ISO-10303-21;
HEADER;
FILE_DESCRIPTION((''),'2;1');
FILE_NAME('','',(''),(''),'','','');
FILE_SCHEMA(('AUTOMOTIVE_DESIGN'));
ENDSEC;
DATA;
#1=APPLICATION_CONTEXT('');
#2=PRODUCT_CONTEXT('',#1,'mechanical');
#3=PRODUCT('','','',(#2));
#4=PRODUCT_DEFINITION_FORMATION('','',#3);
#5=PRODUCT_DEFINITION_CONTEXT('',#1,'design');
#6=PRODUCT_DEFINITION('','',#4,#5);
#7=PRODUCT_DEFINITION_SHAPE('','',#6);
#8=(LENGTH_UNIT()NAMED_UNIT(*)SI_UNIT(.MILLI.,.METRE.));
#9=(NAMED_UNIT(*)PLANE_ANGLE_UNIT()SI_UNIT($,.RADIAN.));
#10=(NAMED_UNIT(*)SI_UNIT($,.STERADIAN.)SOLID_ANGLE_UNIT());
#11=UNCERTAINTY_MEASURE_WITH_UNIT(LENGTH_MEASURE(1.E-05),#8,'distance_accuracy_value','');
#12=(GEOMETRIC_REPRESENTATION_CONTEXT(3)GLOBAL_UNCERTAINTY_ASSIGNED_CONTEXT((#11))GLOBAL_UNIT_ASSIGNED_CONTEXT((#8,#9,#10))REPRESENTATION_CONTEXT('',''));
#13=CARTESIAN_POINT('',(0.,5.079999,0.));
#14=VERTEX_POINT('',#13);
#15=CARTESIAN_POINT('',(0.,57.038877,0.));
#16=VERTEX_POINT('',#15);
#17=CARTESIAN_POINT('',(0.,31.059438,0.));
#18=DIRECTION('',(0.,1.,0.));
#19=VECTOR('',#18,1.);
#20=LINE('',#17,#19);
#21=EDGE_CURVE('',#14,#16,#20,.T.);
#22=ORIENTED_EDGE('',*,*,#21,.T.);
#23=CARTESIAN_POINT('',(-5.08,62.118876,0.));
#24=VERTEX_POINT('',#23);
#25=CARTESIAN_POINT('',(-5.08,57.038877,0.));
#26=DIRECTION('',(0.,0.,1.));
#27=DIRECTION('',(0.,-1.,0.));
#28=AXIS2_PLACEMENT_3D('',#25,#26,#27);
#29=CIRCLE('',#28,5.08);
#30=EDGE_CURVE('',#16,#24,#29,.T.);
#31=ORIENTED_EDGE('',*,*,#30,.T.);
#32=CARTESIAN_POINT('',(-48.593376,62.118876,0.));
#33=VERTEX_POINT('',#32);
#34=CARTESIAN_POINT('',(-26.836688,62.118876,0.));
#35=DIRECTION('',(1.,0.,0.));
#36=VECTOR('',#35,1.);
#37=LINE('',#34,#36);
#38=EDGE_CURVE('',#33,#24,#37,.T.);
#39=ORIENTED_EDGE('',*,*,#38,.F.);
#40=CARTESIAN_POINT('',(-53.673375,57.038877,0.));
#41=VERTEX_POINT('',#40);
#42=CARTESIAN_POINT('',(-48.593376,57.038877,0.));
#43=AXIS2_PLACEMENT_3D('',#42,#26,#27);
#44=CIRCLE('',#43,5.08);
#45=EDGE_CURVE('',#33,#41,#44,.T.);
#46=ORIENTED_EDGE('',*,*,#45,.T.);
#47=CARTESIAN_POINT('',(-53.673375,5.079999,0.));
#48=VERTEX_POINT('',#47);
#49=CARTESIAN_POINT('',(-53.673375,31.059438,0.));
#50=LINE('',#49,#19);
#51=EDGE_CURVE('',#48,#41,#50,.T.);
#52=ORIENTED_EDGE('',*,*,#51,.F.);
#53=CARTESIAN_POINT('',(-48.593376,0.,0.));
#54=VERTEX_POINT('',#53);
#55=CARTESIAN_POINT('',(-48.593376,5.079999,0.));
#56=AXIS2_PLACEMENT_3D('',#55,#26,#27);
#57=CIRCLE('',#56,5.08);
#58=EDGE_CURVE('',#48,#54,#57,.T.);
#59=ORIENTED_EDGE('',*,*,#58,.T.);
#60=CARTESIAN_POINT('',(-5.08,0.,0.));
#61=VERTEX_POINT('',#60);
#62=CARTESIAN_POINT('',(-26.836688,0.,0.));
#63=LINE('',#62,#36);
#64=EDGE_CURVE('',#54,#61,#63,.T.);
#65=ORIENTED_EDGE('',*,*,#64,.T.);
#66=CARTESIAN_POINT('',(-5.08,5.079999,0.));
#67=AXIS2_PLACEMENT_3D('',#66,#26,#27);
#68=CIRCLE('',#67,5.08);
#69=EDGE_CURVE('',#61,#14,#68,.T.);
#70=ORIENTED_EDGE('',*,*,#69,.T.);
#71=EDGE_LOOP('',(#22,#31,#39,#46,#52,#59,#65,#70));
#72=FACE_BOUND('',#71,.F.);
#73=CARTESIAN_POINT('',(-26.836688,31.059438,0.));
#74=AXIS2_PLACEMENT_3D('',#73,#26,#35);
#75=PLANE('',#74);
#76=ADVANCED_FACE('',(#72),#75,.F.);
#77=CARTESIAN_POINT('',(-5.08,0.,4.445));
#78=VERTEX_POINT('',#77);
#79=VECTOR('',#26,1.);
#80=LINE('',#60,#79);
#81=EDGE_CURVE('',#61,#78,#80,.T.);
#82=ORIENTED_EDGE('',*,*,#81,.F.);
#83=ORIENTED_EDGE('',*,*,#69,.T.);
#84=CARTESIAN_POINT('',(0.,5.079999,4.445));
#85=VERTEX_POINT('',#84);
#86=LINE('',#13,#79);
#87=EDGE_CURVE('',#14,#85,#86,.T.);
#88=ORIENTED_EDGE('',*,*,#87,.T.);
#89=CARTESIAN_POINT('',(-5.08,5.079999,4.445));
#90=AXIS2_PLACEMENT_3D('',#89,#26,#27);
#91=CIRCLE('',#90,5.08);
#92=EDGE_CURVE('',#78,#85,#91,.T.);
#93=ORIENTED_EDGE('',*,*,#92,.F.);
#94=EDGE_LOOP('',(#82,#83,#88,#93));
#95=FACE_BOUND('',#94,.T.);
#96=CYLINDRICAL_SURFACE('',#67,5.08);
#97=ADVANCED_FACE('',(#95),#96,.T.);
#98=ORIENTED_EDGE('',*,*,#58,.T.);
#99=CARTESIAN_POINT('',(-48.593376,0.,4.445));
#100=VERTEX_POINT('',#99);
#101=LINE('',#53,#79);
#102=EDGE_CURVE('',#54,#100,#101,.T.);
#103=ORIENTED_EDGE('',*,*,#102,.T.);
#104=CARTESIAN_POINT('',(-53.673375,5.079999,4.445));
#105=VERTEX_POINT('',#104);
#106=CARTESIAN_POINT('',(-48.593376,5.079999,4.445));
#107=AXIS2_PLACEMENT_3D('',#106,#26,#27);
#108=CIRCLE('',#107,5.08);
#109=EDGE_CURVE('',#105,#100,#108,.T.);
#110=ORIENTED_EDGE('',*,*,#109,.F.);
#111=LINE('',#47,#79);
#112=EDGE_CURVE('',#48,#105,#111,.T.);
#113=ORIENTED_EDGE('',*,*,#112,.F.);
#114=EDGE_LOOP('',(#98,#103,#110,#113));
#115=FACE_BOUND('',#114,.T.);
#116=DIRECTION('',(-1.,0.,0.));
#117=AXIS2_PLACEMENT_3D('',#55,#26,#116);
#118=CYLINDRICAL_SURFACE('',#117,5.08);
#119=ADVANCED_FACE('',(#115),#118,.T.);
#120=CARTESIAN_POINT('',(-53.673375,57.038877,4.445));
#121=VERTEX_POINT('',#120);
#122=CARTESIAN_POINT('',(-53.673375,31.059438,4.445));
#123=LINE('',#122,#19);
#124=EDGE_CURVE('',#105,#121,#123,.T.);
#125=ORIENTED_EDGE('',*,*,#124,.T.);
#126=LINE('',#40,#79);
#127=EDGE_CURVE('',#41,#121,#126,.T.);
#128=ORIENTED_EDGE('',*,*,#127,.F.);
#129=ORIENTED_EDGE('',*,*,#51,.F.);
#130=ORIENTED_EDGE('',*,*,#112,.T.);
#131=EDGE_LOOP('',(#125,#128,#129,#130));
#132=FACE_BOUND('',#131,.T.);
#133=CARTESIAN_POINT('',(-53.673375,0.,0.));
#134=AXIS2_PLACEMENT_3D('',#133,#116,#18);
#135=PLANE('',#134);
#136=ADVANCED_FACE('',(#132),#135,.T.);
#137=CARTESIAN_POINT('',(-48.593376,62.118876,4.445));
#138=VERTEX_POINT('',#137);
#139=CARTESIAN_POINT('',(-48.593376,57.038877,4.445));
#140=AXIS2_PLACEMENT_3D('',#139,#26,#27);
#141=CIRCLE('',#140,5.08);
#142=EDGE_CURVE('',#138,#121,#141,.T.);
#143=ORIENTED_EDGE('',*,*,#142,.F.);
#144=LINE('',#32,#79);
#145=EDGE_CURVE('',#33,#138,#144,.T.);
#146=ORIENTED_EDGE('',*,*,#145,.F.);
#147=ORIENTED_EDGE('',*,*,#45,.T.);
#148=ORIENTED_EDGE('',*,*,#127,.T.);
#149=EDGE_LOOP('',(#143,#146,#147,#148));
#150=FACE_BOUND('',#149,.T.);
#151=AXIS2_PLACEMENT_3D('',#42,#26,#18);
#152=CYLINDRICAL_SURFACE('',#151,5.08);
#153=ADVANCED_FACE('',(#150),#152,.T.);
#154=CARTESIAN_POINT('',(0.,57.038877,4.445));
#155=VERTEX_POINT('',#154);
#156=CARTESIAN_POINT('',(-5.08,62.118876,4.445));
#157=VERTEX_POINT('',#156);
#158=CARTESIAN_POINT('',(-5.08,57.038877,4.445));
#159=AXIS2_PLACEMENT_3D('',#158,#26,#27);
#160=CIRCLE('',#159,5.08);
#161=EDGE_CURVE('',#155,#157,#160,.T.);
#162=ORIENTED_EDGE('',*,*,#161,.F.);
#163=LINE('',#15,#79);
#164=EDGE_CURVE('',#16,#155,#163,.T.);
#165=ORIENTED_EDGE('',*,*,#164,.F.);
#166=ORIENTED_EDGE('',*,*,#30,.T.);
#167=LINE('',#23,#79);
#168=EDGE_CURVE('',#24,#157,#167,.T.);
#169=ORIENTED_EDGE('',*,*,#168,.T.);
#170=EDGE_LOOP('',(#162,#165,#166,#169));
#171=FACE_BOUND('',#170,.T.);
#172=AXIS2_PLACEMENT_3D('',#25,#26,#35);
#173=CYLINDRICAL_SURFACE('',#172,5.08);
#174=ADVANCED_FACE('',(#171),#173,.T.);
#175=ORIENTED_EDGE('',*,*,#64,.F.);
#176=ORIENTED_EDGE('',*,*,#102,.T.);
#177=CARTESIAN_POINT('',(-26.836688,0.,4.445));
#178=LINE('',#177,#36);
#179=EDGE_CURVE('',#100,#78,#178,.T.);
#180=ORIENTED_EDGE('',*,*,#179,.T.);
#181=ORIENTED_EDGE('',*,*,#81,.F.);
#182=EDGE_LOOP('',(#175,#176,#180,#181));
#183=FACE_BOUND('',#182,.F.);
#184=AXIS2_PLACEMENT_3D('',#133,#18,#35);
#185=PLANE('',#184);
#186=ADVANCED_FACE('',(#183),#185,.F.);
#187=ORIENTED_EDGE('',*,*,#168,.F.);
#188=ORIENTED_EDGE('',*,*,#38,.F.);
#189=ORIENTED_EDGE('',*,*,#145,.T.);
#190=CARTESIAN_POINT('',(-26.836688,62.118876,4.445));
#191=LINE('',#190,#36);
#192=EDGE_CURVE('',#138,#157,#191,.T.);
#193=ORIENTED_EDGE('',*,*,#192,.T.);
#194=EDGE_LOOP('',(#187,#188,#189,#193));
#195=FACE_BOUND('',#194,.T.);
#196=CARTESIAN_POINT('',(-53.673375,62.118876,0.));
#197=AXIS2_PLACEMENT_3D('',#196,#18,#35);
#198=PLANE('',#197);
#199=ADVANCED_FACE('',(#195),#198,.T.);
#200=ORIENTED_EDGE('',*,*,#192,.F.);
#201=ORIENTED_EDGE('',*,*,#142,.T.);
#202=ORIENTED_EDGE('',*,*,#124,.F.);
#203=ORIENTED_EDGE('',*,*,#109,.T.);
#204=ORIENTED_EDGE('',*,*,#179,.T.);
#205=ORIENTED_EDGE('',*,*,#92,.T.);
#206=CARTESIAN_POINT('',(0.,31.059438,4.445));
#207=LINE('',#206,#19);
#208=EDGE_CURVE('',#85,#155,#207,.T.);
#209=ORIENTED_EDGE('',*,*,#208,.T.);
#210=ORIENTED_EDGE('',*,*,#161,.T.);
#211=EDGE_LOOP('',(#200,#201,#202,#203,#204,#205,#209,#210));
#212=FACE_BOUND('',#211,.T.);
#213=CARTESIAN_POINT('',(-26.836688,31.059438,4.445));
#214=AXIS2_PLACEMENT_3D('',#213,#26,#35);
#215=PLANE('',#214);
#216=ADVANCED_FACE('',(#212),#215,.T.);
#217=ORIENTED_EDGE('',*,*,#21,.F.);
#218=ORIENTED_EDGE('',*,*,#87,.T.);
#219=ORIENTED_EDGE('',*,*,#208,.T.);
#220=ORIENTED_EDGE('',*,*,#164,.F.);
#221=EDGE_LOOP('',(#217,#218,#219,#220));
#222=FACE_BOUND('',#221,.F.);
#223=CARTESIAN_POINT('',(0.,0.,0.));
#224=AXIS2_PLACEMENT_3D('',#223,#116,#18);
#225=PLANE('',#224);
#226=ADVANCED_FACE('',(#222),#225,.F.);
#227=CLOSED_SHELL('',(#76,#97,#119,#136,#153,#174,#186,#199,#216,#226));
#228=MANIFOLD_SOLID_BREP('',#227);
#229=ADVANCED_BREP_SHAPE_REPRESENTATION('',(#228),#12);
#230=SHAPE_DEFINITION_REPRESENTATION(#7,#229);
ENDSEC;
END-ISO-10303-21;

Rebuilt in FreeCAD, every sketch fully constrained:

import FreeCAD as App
import Part
import Sketcher

V = App.Vector
Q = App.Units.Quantity


def edges_at(feature, points):
    """Names of the edges that pass closest to the given points."""
    edges = feature.Shape.Edges
    near = lambda p: min(range(len(edges)), key=lambda i: edges[i].distToShape(Part.Vertex(*p))[0])
    return sorted({f"Edge{near(p) + 1}" for p in points})

doc = App.newDocument("Part")
params = doc.addObject("Spreadsheet::Sheet", "Params")
for row, (alias, value) in enumerate([
    ("pad1_length", "0.175 in"),
    ("fillet_radius", "0.2 in"),
    ("fillet2_radius", "0.2 in"),
    ("fillet3_radius", "0.2 in"),
    ("fillet4_radius", "0.2 in"),
], start=1):
    params.set(f"A{row}", alias)
    params.set(f"B{row}", "=" + value)
    params.setAlias(f"B{row}", alias)

body = doc.addObject("PartDesign::Body", "Body")

# Sketch on XY plane
sketch1 = body.newObject("Sketcher::SketchObject", "Sketch")
sketch1.AttachmentSupport = (doc.getObject("XY_Plane"), [""])
sketch1.MapMode = "FlatFace"
sketch1.addGeometry([
    Part.LineSegment(V(-54, 62, 0), V(-54, 0, 0)),
    Part.LineSegment(V(-54, 0, 0), V(0, 0, 0)),
    Part.LineSegment(V(0, 0, 0), V(0, 62, 0)),
    Part.LineSegment(V(0, 62, 0), V(-54, 62, 0)),
], False)
sketch1.addConstraint([
    Sketcher.Constraint("Coincident", 0, 2, 1, 1),
    Sketcher.Constraint("Coincident", 1, 2, 2, 1),
    Sketcher.Constraint("Coincident", 2, 2, 3, 1),
    Sketcher.Constraint("Coincident", 3, 2, 0, 1),
    Sketcher.Constraint("Vertical", 0),
    Sketcher.Constraint("Horizontal", 1),
    Sketcher.Constraint("Vertical", 2),
    Sketcher.Constraint("Horizontal", 3),
    Sketcher.Constraint("Coincident", 1, 2, -1, 1),
    Sketcher.Constraint("DistanceX", 1, 1, 1, 2, Q("53.673375 mm")),
    Sketcher.Constraint("DistanceY", 0, 2, 0, 1, Q("62.118877 mm")),
])
pad1 = body.newObject("PartDesign::Pad", "Pad")
pad1.Profile = sketch1
pad1.setExpression("Length", "Params.pad1_length")
doc.recompute()

fillet = body.newObject("PartDesign::Fillet", "Fillet")
fillet.Base = (pad1, edges_at(pad1, [(0, 62.119, 2.223)]))
fillet.setExpression("Radius", "Params.fillet_radius")
doc.recompute()

fillet2 = body.newObject("PartDesign::Fillet", "Fillet001")
fillet2.Base = (fillet, edges_at(fillet, [(-53.673, 62.119, 2.223)]))
fillet2.setExpression("Radius", "Params.fillet2_radius")
doc.recompute()

fillet3 = body.newObject("PartDesign::Fillet", "Fillet002")
fillet3.Base = (fillet2, edges_at(fillet2, [(-53.673, 0, 2.223)]))
fillet3.setExpression("Radius", "Params.fillet3_radius")
doc.recompute()

fillet4 = body.newObject("PartDesign::Fillet", "Fillet003")
fillet4.Base = (fillet3, edges_at(fillet3, [(0, 0, 2.223)]))
fillet4.setExpression("Radius", "Params.fillet4_radius")

doc.recompute()
